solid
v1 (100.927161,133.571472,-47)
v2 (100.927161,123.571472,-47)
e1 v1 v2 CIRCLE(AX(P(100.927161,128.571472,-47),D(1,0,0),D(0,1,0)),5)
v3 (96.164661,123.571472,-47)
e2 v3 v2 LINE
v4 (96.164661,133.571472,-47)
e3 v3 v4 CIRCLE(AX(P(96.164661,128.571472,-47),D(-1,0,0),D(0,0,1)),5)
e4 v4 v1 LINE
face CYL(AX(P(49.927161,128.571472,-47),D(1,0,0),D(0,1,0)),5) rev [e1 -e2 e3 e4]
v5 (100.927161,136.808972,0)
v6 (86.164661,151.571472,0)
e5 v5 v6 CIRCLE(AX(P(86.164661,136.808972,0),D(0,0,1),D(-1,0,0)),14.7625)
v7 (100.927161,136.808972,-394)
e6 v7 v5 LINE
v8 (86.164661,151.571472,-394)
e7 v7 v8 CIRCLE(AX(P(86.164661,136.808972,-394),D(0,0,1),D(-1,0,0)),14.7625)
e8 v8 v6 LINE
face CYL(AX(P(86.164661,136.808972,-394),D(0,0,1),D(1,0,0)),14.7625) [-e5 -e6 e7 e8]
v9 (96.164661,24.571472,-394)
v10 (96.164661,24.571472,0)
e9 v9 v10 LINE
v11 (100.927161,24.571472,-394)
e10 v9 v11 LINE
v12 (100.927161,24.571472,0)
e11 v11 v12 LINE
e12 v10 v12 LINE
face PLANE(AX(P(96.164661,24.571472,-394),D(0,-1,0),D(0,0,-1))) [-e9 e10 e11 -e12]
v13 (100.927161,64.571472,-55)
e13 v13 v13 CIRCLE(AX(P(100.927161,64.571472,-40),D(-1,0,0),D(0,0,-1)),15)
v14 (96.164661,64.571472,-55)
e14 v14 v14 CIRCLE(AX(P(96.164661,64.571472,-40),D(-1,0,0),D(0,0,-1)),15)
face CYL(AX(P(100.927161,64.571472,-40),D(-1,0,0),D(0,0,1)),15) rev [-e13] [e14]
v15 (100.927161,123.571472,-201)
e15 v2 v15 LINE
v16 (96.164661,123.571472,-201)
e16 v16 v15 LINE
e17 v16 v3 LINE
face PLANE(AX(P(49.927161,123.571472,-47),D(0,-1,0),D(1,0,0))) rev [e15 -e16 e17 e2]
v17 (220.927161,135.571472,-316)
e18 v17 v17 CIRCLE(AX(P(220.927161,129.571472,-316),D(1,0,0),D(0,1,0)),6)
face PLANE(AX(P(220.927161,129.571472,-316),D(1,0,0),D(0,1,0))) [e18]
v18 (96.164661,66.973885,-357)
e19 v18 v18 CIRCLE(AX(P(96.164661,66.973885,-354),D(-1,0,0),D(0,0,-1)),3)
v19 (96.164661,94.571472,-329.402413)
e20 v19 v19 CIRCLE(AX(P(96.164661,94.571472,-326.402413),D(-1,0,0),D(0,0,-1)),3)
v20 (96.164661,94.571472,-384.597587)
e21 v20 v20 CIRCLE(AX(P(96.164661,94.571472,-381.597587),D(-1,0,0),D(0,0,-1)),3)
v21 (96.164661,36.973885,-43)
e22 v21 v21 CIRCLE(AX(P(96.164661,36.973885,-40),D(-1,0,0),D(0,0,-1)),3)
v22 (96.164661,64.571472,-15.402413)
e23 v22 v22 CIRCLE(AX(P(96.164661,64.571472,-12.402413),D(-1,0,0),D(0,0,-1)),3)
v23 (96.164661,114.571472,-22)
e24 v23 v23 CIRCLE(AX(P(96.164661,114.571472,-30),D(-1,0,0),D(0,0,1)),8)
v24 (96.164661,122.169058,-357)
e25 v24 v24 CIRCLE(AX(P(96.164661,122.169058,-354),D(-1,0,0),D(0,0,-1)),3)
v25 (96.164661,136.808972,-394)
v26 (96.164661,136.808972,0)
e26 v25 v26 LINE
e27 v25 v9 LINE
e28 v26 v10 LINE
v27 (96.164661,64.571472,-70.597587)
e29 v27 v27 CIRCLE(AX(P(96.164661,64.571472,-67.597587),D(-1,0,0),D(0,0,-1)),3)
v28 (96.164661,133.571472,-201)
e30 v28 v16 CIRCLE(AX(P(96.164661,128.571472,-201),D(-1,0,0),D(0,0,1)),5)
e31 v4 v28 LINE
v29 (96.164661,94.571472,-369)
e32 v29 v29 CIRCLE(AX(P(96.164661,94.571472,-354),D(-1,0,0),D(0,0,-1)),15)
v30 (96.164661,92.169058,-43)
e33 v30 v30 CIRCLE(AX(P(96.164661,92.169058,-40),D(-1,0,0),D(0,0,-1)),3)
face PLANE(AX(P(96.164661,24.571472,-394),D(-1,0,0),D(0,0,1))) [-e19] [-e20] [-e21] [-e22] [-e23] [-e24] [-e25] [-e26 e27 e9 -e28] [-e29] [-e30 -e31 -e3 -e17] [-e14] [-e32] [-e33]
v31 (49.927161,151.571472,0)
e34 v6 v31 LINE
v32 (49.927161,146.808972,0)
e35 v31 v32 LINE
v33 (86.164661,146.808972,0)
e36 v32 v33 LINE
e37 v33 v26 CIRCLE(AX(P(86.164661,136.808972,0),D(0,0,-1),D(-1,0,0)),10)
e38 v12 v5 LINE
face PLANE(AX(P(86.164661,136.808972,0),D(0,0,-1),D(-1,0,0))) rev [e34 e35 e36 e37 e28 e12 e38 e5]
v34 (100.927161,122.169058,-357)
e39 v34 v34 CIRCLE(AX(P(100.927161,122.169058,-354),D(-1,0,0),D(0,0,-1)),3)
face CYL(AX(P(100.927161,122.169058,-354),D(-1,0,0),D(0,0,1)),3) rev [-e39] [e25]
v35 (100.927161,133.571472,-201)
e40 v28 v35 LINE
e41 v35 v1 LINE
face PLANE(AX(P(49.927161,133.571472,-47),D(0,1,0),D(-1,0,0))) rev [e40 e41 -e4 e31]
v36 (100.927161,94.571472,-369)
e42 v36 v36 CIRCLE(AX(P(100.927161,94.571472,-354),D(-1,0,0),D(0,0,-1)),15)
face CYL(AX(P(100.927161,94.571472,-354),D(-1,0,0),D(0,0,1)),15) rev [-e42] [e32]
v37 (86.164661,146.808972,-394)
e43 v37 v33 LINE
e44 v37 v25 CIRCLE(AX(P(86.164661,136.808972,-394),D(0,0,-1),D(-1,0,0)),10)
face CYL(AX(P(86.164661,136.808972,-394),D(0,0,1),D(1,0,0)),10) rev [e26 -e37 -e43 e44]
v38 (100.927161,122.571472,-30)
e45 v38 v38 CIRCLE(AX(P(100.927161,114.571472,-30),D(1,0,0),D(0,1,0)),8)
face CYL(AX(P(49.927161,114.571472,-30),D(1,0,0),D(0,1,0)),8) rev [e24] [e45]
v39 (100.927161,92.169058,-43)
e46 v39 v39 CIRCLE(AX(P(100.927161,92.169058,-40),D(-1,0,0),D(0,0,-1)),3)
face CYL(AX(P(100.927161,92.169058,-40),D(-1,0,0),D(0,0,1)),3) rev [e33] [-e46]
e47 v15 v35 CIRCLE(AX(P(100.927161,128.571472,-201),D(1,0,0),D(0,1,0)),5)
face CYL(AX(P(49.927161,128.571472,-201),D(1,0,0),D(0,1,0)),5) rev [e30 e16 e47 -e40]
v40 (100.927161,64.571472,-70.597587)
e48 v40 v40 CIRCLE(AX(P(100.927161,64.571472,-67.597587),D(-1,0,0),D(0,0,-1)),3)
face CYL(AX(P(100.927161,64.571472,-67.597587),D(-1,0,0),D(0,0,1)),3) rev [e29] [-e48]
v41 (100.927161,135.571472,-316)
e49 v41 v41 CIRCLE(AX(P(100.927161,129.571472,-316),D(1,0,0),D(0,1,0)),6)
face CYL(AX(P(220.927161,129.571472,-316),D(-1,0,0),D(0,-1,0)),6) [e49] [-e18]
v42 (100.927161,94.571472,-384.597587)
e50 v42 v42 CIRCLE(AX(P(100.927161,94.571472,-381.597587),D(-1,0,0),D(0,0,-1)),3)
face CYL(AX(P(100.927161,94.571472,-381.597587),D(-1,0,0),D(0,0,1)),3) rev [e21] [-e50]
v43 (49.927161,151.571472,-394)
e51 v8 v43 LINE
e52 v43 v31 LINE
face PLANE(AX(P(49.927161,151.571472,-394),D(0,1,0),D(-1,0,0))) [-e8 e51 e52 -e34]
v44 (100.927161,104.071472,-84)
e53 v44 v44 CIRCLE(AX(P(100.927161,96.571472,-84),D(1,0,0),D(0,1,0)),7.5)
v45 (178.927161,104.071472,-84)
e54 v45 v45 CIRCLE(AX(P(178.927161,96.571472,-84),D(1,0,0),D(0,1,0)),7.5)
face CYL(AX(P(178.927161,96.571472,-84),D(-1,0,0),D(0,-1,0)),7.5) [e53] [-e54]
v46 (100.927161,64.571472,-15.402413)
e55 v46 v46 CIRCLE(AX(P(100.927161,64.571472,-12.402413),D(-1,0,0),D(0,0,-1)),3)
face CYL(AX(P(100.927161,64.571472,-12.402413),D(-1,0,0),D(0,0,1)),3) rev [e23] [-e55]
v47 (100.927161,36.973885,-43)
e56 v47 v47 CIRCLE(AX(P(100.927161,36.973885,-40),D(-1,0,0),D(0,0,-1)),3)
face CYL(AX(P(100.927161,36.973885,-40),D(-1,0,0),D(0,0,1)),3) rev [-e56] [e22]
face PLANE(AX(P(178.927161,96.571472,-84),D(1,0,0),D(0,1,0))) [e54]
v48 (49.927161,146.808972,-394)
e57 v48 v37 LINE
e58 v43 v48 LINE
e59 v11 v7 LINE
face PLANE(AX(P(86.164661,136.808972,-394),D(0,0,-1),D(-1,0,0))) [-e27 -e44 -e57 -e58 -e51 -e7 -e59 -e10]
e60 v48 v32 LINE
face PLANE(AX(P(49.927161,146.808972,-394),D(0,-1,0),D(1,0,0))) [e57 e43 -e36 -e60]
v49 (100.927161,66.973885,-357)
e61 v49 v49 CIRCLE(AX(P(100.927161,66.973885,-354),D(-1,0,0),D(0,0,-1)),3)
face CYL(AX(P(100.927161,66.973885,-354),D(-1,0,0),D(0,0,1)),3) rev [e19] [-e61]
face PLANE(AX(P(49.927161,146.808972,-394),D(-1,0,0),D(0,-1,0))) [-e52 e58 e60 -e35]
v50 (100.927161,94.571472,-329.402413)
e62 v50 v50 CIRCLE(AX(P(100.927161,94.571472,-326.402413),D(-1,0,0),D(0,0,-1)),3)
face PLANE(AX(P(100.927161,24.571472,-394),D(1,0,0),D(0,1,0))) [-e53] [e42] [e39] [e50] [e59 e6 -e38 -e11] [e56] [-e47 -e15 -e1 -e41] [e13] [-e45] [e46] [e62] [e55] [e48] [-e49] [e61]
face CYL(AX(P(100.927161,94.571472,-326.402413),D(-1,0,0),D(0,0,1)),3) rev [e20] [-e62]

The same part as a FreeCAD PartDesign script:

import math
import FreeCAD as App
import Part
import Sketcher

V = App.Vector
Q = App.Units.Quantity

doc = App.newDocument("Part")
body = doc.addObject("PartDesign::Body", "Body")

# Sketch on XY plane
sketch1 = body.newObject("Sketcher::SketchObject", "Sketch")
sketch1.AttachmentSupport = (doc.getObject("XY_Plane"), [""])
sketch1.MapMode = "FlatFace"
sketch1.addGeometry([
    Part.LineSegment(V(96.2, 24.6, 0), V(100.9, 24.6, 0)),  # 0
    Part.LineSegment(V(100.9, 24.6, 0), V(100.9, 136.8, 0)),  # 1
    Part.ArcOfCircle(Part.Circle(V(86.2, 136.8, 0), V(0, 0, 1), 14.8), math.radians(0), math.radians(90)),  # 2
    Part.LineSegment(V(86.2, 151.6, 0), V(49.9, 151.6, 0)),  # 3
    Part.LineSegment(V(49.9, 151.6, 0), V(49.9, 146.8, 0)),  # 4
    Part.LineSegment(V(49.9, 146.8, 0), V(86.2, 146.8, 0)),  # 5
    Part.ArcOfCircle(Part.Circle(V(86.2, 136.8, 0), V(0, 0, 1), 10), math.radians(0), math.radians(90)),  # 6
    Part.LineSegment(V(96.2, 136.8, 0), V(96.2, 24.6, 0)),  # 7
], False)
sketch1.addConstraint([
    Sketcher.Constraint("Coincident", 0, 2, 1, 1),
    Sketcher.Constraint("Tangent", 1, 2, 2, 1),
    Sketcher.Constraint("Tangent", 2, 2, 3, 1),
    Sketcher.Constraint("Coincident", 3, 2, 4, 1),
    Sketcher.Constraint("Coincident", 4, 2, 5, 1),
    Sketcher.Constraint("Tangent", 5, 2, 6, 2),
    Sketcher.Constraint("Tangent", 6, 1, 7, 1),
    Sketcher.Constraint("Coincident", 7, 2, 0, 1),
    Sketcher.Constraint("Horizontal", 0),
    Sketcher.Constraint("Vertical", 1),
    Sketcher.Constraint("Horizontal", 3),
    Sketcher.Constraint("Vertical", 4),
    Sketcher.Constraint("Horizontal", 5),
    Sketcher.Constraint("Vertical", 7),
    Sketcher.Constraint("Coincident", 6, 3, 2, 3),
    Sketcher.Constraint("Radius", 6, Q("10 mm")),
    Sketcher.Constraint("DistanceY", 0, 2, 2, 2, Q("127 mm")),
    Sketcher.Constraint("DistanceX", 3, 2, 1, 2, Q("51 mm")),
    Sketcher.Constraint("Radius", 2, Q("14.7625 mm")),
    Sketcher.Constraint("DistanceX", -1, 1, 2, 3, Q("86.164661 mm")),
    Sketcher.Constraint("DistanceY", -1, 1, 2, 3, Q("136.808972 mm")),
])
pad1 = body.newObject("PartDesign::Pad", "Pad")
pad1.Profile = sketch1
pad1.Length = 394
pad1.Reversed = True

# Sketch on YZ plane
sketch2 = body.newObject("Sketcher::SketchObject", "Sketch001")
sketch2.AttachmentSupport = (doc.getObject("YZ_Plane"), [""])
sketch2.MapMode = "FlatFace"
sketch2.AttachmentOffset = App.Placement(V(0, 0, 96.164661), App.Rotation())
sketch2.addGeometry([
    Part.Circle(V(37, -40, 0), V(0, 0, 1), 3),  # 0
    Part.Circle(V(64.6, -12.4, 0), V(0, 0, 1), 3),  # 1
    Part.Circle(V(64.6, -67.6, 0), V(0, 0, 1), 3),  # 2
    Part.Circle(V(92.2, -40, 0), V(0, 0, 1), 3),  # 3
    Part.Circle(V(64.6, -40, 0), V(0, 0, 1), 15),  # 4
    Part.Circle(V(94.6, -326.4, 0), V(0, 0, 1), 3),  # 5
    Part.Circle(V(67, -354, 0), V(0, 0, 1), 3),  # 6
    Part.Circle(V(94.6, -354, 0), V(0, 0, 1), 15),  # 7
    Part.Circle(V(94.6, -381.6, 0), V(0, 0, 1), 3),  # 8
    Part.Circle(V(122.2, -354, 0), V(0, 0, 1), 3),  # 9
], False)
sketch2.addConstraint([
    Sketcher.Constraint("Equal", 0, 1),
    Sketcher.Constraint("Equal", 1, 2),
    Sketcher.Constraint("Equal", 2, 3),
    Sketcher.Constraint("Equal", 3, 5),
    Sketcher.Constraint("Equal", 5, 6),
    Sketcher.Constraint("Equal", 4, 7),
    Sketcher.Constraint("Equal", 6, 8),
    Sketcher.Constraint("Equal", 8, 9),
    Sketcher.Constraint("Horizontal", 0, 3, 3, 3),
    Sketcher.Constraint("Horizontal", 3, 3, 4, 3),
    Sketcher.Constraint("Horizontal", 6, 3, 7, 3),
    Sketcher.Constraint("Horizontal", 7, 3, 9, 3),
    Sketcher.Constraint("Vertical", 1, 3, 2, 3),
    Sketcher.Constraint("Vertical", 2, 3, 4, 3),
    Sketcher.Constraint("Vertical", 5, 3, 7, 3),
    Sketcher.Constraint("Vertical", 7, 3, 8, 3),
    Sketcher.Constraint("Diameter", 0, Q("6 mm")),
    Sketcher.Constraint("Diameter", 4, Q("30 mm")),
    Sketcher.Constraint("DistanceY", 0, 3, -1, 1, Q("40 mm")),
    Sketcher.Constraint("DistanceY", 6, 3, -1, 1, Q("354 mm")),
    Sketcher.Constraint("DistanceX", 2, 3, 5, 3, Q("30 mm")),
    Sketcher.Constraint("DistanceY", 5, 3, 1, 3, Q("314 mm")),
    Sketcher.Constraint("DistanceX", 0, 3, 6, 3, Q("30 mm")),
    Sketcher.Constraint("DistanceY", 8, 3, 2, 3, Q("314 mm")),
    Sketcher.Constraint("DistanceX", -1, 1, 1, 3, Q("64.571472 mm")),
    Sketcher.Constraint("DistanceX", -1, 1, 3, 3, Q("92.169058 mm")),
    Sketcher.Constraint("DistanceX", -1, 1, 9, 3, Q("122.169058 mm")),
    Sketcher.Constraint("DistanceX", -1, 1, 0, 3, Q("36.973885 mm")),
    Sketcher.Constraint("DistanceY", 1, 3, -1, 1, Q("12.402413 mm")),
    Sketcher.Constraint("DistanceY", 2, 3, -1, 1, Q("67.597587 mm")),
])
pocket1 = body.newObject("PartDesign::Pocket", "Pocket")
pocket1.Profile = sketch2
pocket1.Type = "ThroughAll"
pocket1.Reversed = True

# Sketch on YZ plane
sketch3 = body.newObject("Sketcher::SketchObject", "Sketch002")
sketch3.AttachmentSupport = (doc.getObject("YZ_Plane"), [""])
sketch3.MapMode = "FlatFace"
sketch3.AttachmentOffset = App.Placement(V(0, 0, 100.927161), App.Rotation())
sketch3.addGeometry(Part.Circle(V(115, -30, 0), V(0, 0, 1), 8), False)
sketch3.addConstraint([
    Sketcher.Constraint("Diameter", 0, Q("16 mm")),
    Sketcher.Constraint("DistanceY", 0, 3, -1, 1, Q("30 mm")),
    Sketcher.Constraint("DistanceX", -1, 1, 0, 3, Q("114.571472 mm")),
])
pocket2 = body.newObject("PartDesign::Pocket", "Pocket001")
pocket2.Profile = sketch3
pocket2.Type = "ThroughAll"

# Sketch on YZ plane
sketch4 = body.newObject("Sketcher::SketchObject", "Sketch003")
sketch4.AttachmentSupport = (doc.getObject("YZ_Plane"), [""])
sketch4.MapMode = "FlatFace"
sketch4.AttachmentOffset = App.Placement(V(0, 0, 100.927161), App.Rotation())
sketch4.addGeometry(Part.Circle(V(97, -84, 0), V(0, 0, 1), 8), False)
sketch4.addConstraint([
    Sketcher.Constraint("Diameter", 0, Q("15 mm")),
    Sketcher.Constraint("DistanceY", 0, 3, -1, 1, Q("84 mm")),
    Sketcher.Constraint("DistanceX", -1, 1, 0, 3, Q("96.571472 mm")),
])
pad2 = body.newObject("PartDesign::Pad", "Pad001")
pad2.Profile = sketch4
pad2.Length = 78

# Sketch on YZ plane
sketch5 = body.newObject("Sketcher::SketchObject", "Sketch004")
sketch5.AttachmentSupport = (doc.getObject("YZ_Plane"), [""])
sketch5.MapMode = "FlatFace"
sketch5.AttachmentOffset = App.Placement(V(0, 0, 100.927161), App.Rotation())
sketch5.addGeometry(Part.Circle(V(130, -316, 0), V(0, 0, 1), 6), False)
sketch5.addConstraint([
    Sketcher.Constraint("Diameter", 0, Q("12 mm")),
    Sketcher.Constraint("DistanceY", 0, 3, -1, 1, Q("316 mm")),
    Sketcher.Constraint("DistanceX", -1, 1, 0, 3, Q("129.571472 mm")),
])
pad3 = body.newObject("PartDesign::Pad", "Pad002")
pad3.Profile = sketch5
pad3.Length = 120

# Sketch on YZ plane
sketch6 = body.newObject("Sketcher::SketchObject", "Sketch005")
sketch6.AttachmentSupport = (doc.getObject("YZ_Plane"), [""])
sketch6.MapMode = "FlatFace"
sketch6.AttachmentOffset = App.Placement(V(0, 0, 100.927161), App.Rotation())
sketch6.addGeometry([
    Part.LineSegment(V(134, -201, 0), V(134, -47, 0)),
    Part.ArcOfCircle(Part.Circle(V(129, -47, 0), V(0, 0, 1), 5), math.radians(0), math.radians(180)),
    Part.LineSegment(V(124, -47, 0), V(124, -201, 0)),
    Part.ArcOfCircle(Part.Circle(V(129, -201, 0), V(0, 0, 1), 5), math.radians(180), math.radians(360)),
], False)
sketch6.addConstraint([
    Sketcher.Constraint("Tangent", 0, 2, 1, 1),
    Sketcher.Constraint("Tangent", 1, 2, 2, 1),
    Sketcher.Constraint("Tangent", 2, 2, 3, 1),
    Sketcher.Constraint("Tangent", 3, 2, 0, 1),
    Sketcher.Constraint("Vertical", 0),
    Sketcher.Constraint("Vertical", 2),
    Sketcher.Constraint("Radius", 1, Q("5 mm")),
    Sketcher.Constraint("DistanceY", 0, 1, 0, 2, Q("154 mm")),
    Sketcher.Constraint("DistanceY", 1, 3, -1, 1, Q("47 mm")),
    Sketcher.Constraint("DistanceX", -1, 1, 1, 3, Q("128.571472 mm")),
])
pocket3 = body.newObject("PartDesign::Pocket", "Pocket002")
pocket3.Profile = sketch6
pocket3.Type = "ThroughAll"

doc.recompute()
